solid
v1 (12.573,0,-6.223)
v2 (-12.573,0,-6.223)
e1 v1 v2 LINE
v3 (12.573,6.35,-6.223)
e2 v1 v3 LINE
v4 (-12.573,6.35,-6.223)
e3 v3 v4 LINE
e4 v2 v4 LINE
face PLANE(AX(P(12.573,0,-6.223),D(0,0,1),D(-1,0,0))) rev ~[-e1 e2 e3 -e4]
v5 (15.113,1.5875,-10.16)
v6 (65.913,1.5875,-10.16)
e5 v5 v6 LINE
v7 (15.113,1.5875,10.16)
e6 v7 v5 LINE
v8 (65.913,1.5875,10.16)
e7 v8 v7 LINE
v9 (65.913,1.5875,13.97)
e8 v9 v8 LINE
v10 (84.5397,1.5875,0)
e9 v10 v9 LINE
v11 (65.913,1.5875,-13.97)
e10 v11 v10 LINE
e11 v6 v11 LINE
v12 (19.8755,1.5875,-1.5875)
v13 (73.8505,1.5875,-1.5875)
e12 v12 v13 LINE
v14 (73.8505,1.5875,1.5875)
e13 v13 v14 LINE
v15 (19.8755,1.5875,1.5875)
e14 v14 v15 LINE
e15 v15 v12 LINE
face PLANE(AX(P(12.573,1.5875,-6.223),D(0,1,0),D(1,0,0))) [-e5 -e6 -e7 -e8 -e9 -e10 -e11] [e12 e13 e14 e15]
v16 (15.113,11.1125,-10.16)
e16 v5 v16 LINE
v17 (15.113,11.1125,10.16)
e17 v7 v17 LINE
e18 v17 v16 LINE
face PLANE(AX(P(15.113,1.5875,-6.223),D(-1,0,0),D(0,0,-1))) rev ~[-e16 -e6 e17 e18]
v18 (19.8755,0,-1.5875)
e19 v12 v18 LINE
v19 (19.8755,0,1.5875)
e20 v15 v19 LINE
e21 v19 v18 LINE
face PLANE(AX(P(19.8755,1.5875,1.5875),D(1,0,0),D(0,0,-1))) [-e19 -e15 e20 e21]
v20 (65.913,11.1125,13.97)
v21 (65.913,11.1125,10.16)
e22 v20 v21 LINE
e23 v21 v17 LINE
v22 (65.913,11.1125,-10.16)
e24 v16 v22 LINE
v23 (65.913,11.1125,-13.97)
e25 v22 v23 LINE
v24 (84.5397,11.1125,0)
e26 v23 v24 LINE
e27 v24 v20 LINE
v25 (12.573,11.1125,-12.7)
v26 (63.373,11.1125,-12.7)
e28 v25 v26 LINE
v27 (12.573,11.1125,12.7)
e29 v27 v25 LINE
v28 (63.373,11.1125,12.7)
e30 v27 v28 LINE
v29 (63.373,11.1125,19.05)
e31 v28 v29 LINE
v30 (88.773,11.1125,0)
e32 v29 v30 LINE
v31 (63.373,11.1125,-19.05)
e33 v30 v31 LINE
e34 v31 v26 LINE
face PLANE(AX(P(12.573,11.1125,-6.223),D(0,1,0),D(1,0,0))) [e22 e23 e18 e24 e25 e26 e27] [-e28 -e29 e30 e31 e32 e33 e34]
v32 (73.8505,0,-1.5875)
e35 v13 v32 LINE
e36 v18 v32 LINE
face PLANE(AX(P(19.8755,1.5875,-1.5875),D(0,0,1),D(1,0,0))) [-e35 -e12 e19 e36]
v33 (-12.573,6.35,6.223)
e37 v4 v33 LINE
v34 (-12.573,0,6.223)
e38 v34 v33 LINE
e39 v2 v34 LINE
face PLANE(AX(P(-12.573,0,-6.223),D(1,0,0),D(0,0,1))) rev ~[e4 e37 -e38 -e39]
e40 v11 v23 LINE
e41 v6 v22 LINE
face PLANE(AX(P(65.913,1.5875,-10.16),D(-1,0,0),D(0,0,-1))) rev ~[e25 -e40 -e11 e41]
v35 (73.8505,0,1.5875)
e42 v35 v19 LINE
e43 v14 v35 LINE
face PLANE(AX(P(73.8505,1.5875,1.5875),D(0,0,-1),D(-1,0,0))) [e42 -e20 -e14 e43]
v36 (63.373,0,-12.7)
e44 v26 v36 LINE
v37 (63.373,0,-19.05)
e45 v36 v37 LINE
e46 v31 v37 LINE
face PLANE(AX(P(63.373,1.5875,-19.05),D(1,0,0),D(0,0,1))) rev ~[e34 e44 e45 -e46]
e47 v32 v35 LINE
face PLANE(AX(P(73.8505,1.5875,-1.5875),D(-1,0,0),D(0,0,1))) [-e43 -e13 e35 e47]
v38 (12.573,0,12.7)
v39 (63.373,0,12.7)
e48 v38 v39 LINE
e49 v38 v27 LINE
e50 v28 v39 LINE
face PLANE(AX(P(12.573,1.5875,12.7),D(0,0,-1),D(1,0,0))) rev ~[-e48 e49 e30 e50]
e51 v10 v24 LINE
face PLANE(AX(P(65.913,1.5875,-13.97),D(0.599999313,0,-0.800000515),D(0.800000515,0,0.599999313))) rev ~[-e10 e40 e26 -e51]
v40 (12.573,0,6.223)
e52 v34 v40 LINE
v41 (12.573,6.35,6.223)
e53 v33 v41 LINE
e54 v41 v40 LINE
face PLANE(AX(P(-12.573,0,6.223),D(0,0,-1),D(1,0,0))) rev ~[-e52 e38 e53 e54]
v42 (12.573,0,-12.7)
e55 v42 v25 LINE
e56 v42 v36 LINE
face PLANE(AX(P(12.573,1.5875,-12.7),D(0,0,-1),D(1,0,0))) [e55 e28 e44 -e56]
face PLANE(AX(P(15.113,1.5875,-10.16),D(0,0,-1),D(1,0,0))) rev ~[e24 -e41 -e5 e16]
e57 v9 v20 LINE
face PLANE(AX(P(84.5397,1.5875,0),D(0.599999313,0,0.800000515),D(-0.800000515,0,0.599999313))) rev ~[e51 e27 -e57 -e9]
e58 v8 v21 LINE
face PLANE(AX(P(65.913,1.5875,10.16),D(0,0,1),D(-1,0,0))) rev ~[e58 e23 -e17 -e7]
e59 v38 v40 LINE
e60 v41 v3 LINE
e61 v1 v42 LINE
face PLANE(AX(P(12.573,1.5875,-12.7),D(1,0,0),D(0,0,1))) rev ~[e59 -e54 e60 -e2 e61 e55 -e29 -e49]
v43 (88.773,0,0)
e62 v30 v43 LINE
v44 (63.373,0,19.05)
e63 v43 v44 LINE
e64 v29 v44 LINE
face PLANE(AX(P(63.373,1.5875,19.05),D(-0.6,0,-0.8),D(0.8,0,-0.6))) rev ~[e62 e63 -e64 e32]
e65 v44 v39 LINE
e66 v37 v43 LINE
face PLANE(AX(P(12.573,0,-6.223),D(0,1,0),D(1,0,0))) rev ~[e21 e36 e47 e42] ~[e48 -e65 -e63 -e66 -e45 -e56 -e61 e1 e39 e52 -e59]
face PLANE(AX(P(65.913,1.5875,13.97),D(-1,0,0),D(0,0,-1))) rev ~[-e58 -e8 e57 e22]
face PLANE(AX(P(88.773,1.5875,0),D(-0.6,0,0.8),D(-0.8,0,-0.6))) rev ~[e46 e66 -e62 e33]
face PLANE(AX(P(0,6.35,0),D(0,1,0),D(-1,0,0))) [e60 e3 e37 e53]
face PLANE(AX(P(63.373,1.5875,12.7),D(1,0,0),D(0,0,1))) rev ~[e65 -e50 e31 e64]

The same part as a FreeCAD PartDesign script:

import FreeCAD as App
import Part
import Sketcher
Q = App.Units.Quantity

doc = App.newDocument("Part")
params = doc.addObject("Spreadsheet::Sheet", "Params")
for row, (alias, value) in enumerate([
    ("sketch1_width", "0.99 in"),
    ("sketch1_height", "0.49 in"),
    ("pad1_length", "0.25 in"),
    ("sketch2_height", "1 in"),
    ("sketch2_width", "0.0625 in"),
    ("pad2_length", "2 in"),
    ("sketch3_height", "1.5 in"),
    ("pad3_length", "0.0625 in"),
    ("sketch4_width", "2 in"),
    ("sketch4_height", "1 in"),
    ("sketch4_height2", "0.25 in"),
    ("sketch4_height3", "0.15 in"),
    ("pad4_length", "0.375 in"),
    ("sketch5_height", "0.125 in"),
    ("sketch5_width", "2.125 in"),
    ("pocket1_length", "0.375 in"),
], start=1):
    params.set(f"A{row}", alias)
    params.set(f"B{row}", "=" + value)
    params.setAlias(f"B{row}", alias)

body = doc.addObject("PartDesign::Body", "Body")

# Sketch on XZ plane
sketch1 = body.newObject("Sketcher::SketchObject", "Sketch")
sketch1.AttachmentSupport = (doc.getObject("XZ_Plane"), [""])
sketch1.MapMode = "FlatFace"
sketch1.addGeometry([
    Part.LineSegment(App.Vector(-12.573, -6.223, 0), App.Vector(-12.573, 6.223, 0)),
    Part.LineSegment(App.Vector(-12.573, 6.223, 0), App.Vector(12.573, 6.223, 0)),
    Part.LineSegment(App.Vector(12.573, 6.223, 0), App.Vector(12.573, -6.223, 0)),
    Part.LineSegment(App.Vector(12.573, -6.223, 0), App.Vector(-12.573, -6.223, 0)),
], False)
sketch1.addConstraint([
    Sketcher.Constraint("Coincident", 0, 2, 1, 1),
    Sketcher.Constraint("Coincident", 1, 2, 2, 1),
    Sketcher.Constraint("Coincident", 2, 2, 3, 1),
    Sketcher.Constraint("Coincident", 3, 2, 0, 1),
    Sketcher.Constraint("Vertical", 0),
    Sketcher.Constraint("Horizontal", 1),
    Sketcher.Constraint("Vertical", 2),
    Sketcher.Constraint("Horizontal", 3),
    Sketcher.Constraint("Symmetric", 0, 2, 2, 2, -1, 1),
    Sketcher.Constraint("DistanceX", 1, 1, 1, 2, Q("0.99 in")),
    Sketcher.Constraint("DistanceY", 0, 1, 0, 2, Q("0.49 in")),
])
sketch1.setExpression("Constraints[9]", "Params.sketch1_width")
sketch1.setExpression("Constraints[10]", "Params.sketch1_height")
pad1 = body.newObject("PartDesign::Pad", "Pad")
pad1.Profile = sketch1
pad1.setExpression("Length", "Params.pad1_length")
pad1.Reversed = True

# Sketch on YZ plane
sketch2 = body.newObject("Sketcher::SketchObject", "Sketch001")
sketch2.AttachmentSupport = (doc.getObject("YZ_Plane"), [""])
sketch2.MapMode = "FlatFace"
sketch2.AttachmentOffset = App.Placement(App.Vector(0, 0, 0.495 * 25.4), App.Rotation())
sketch2.addGeometry([
    Part.LineSegment(App.Vector(1.5875, 12.7, 0), App.Vector(0, 12.7, 0)),
    Part.LineSegment(App.Vector(0, 12.7, 0), App.Vector(0, -12.7, 0)),
    Part.LineSegment(App.Vector(0, -12.7, 0), App.Vector(1.5875, -12.7, 0)),
    Part.LineSegment(App.Vector(1.5875, -12.7, 0), App.Vector(1.5875, 12.7, 0)),
], False)
sketch2.addConstraint([
    Sketcher.Constraint("Coincident", 0, 2, 1, 1),
    Sketcher.Constraint("Coincident", 1, 2, 2, 1),
    Sketcher.Constraint("Coincident", 2, 2, 3, 1),
    Sketcher.Constraint("Coincident", 3, 2, 0, 1),
    Sketcher.Constraint("Horizontal", 0),
    Sketcher.Constraint("Vertical", 1),
    Sketcher.Constraint("Horizontal", 2),
    Sketcher.Constraint("Vertical", 3),
    Sketcher.Constraint("Symmetric", 0, 2, 1, 2, -1, 1),
    Sketcher.Constraint("DistanceY", 1, 2, 1, 1, Q("1 in")),
    Sketcher.Constraint("DistanceX", 0, 2, 0, 1, Q("0.0625 in")),
])
sketch2.setExpression("Constraints[9]", "Params.sketch2_height")
sketch2.setExpression("Constraints[10]", "Params.sketch2_width")
pad2 = body.newObject("PartDesign::Pad", "Pad001")
pad2.Profile = sketch2
pad2.setExpression("Length", "Params.pad2_length")

# Sketch on XZ plane
sketch3 = body.newObject("Sketcher::SketchObject", "Sketch002")
sketch3.AttachmentSupport = (doc.getObject("XZ_Plane"), [""])
sketch3.MapMode = "FlatFace"
sketch3.AttachmentOffset = App.Placement(App.Vector(0, 0, -0.0625 * 25.4), App.Rotation())
sketch3.addGeometry([
    Part.LineSegment(App.Vector(63.373, -19.05, 0), App.Vector(63.373, 19.05, 0)),
    Part.LineSegment(App.Vector(63.373, 19.05, 0), App.Vector(88.773, 0, 0)),
    Part.LineSegment(App.Vector(88.773, 0, 0), App.Vector(63.373, -19.05, 0)),
], False)
sketch3.addConstraint([
    Sketcher.Constraint("Coincident", 0, 2, 1, 1),
    Sketcher.Constraint("Coincident", 1, 2, 2, 1),
    Sketcher.Constraint("Coincident", 2, 2, 0, 1),
    Sketcher.Constraint("Vertical", 0),
    Sketcher.Constraint("PointOnObject", 1, 2, -1),
    Sketcher.Constraint("Equal", 1, 2),
    Sketcher.Constraint("DistanceY", 0, 1, 0, 2, Q("1.5 in")),
    Sketcher.Constraint("DistanceX", 0, 2, 1, 2, Q("1 in")),
    Sketcher.Constraint("DistanceX", -1, 1, 0, 2, Q("2.495 in")),
])
sketch3.setExpression("Constraints[6]", "Params.sketch3_height")
pad3 = body.newObject("PartDesign::Pad", "Pad002")
pad3.Profile = sketch3
pad3.setExpression("Length", "Params.pad3_length")

# Sketch on XZ plane
sketch4 = body.newObject("Sketcher::SketchObject", "Sketch003")
sketch4.AttachmentSupport = (doc.getObject("XZ_Plane"), [""])
sketch4.MapMode = "FlatFace"
sketch4.AttachmentOffset = App.Placement(App.Vector(0, 0, -0.0625 * 25.4), App.Rotation())
sketch4.addGeometry([
    Part.LineSegment(App.Vector(63.373, -12.7, 0), App.Vector(12.573, -12.7, 0)),  # 0
    Part.LineSegment(App.Vector(12.573, -12.7, 0), App.Vector(12.573, 12.7, 0)),  # 1
    Part.LineSegment(App.Vector(12.573, 12.7, 0), App.Vector(63.373, 12.7, 0)),  # 2
    Part.LineSegment(App.Vector(63.373, 12.7, 0), App.Vector(63.373, 19.05, 0)),  # 3
    Part.LineSegment(App.Vector(63.373, 19.05, 0), App.Vector(88.773, 0, 0)),  # 4
    Part.LineSegment(App.Vector(88.773, 0, 0), App.Vector(63.373, -19.05, 0)),  # 5
    Part.LineSegment(App.Vector(63.373, -19.05, 0), App.Vector(63.373, -12.7, 0)),  # 6
    Part.LineSegment(App.Vector(15.113, -10.16, 0), App.Vector(65.913, -10.16, 0)),  # 7
    Part.LineSegment(App.Vector(65.913, -10.16, 0), App.Vector(65.913, -13.97, 0)),  # 8
    Part.LineSegment(App.Vector(65.913, -13.97, 0), App.Vector(84.5397, 0, 0)),  # 9
    Part.LineSegment(App.Vector(84.5397, 0, 0), App.Vector(65.913, 13.97, 0)),  # 10
    Part.LineSegment(App.Vector(65.913, 13.97, 0), App.Vector(65.913, 10.16, 0)),  # 11
    Part.LineSegment(App.Vector(65.913, 10.16, 0), App.Vector(15.113, 10.16, 0)),  # 12
    Part.LineSegment(App.Vector(15.113, 10.16, 0), App.Vector(15.113, -10.16, 0)),  # 13
], False)
sketch4.addConstraint([
    Sketcher.Constraint("Coincident", 0, 2, 1, 1),
    Sketcher.Constraint("Coincident", 1, 2, 2, 1),
    Sketcher.Constraint("Coincident", 2, 2, 3, 1),
    Sketcher.Constraint("Coincident", 3, 2, 4, 1),
    Sketcher.Constraint("Coincident", 4, 2, 5, 1),
    Sketcher.Constraint("Coincident", 5, 2, 6, 1),
    Sketcher.Constraint("Coincident", 6, 2, 0, 1),
    Sketcher.Constraint("Coincident", 7, 2, 8, 1),
    Sketcher.Constraint("Coincident", 8, 2, 9, 1),
    Sketcher.Constraint("Coincident", 9, 2, 10, 1),
    Sketcher.Constraint("Coincident", 10, 2, 11, 1),
    Sketcher.Constraint("Coincident", 11, 2, 12, 1),
    Sketcher.Constraint("Coincident", 12, 2, 13, 1),
    Sketcher.Constraint("Coincident", 13, 2, 7, 1),
    Sketcher.Constraint("Horizontal", 0),
    Sketcher.Constraint("Vertical", 1),
    Sketcher.Constraint("Horizontal", 2),
    Sketcher.Constraint("Vertical", 3),
    Sketcher.Constraint("Vertical", 6),
    Sketcher.Constraint("Horizontal", 7),
    Sketcher.Constraint("Vertical", 8),
    Sketcher.Constraint("Vertical", 11),
    Sketcher.Constraint("Horizontal", 12),
    Sketcher.Constraint("Vertical", 13),
    Sketcher.Constraint("Symmetric", 3, 2, 5, 2, -1),
    Sketcher.Constraint("Symmetric", 8, 2, 10, 2, -1),
    Sketcher.Constraint("PointOnObject", 4, 2, -1),
    Sketcher.Constraint("PointOnObject", 9, 2, -1),
    Sketcher.Constraint("Parallel", 5, 9),
    Sketcher.Constraint("Equal", 2, 7),
    Sketcher.Constraint("Equal", 3, 6),
    Sketcher.Constraint("Equal", 8, 11),
    Sketcher.Constraint("DistanceX", 6, 2, 7, 2, Q("0.1 in")),
    Sketcher.Constraint("DistanceY", 6, 2, 7, 2, Q("0.1 in")),
    Sketcher.Constraint("DistanceX", 0, 2, 0, 1, Q("2 in")),
    Sketcher.Constraint("DistanceY", 1, 1, 1, 2, Q("1 in")),
    Sketcher.Constraint("DistanceX", 2, 2, 4, 2, Q("1 in")),
    Sketcher.Constraint("DistanceY", 3, 1, 3, 2, Q("0.25 in")),
    Sketcher.Constraint("DistanceY", 8, 2, 8, 1, Q("0.15 in")),
    Sketcher.Constraint("DistanceX", -1, 1, 0, 2, Q("0.495 in")),
])
sketch4.setExpression("Constraints[34]", "Params.sketch4_width")
sketch4.setExpression("Constraints[35]", "Params.sketch4_height")
sketch4.setExpression("Constraints[37]", "Params.sketch4_height2")
sketch4.setExpression("Constraints[38]", "Params.sketch4_height3")
pad4 = body.newObject("PartDesign::Pad", "Pad003")
pad4.Profile = sketch4
pad4.setExpression("Length", "Params.pad4_length")
pad4.Reversed = True

# Sketch on XZ plane
sketch5 = body.newObject("Sketcher::SketchObject", "Sketch004")
sketch5.AttachmentSupport = (doc.getObject("XZ_Plane"), [""])
sketch5.MapMode = "FlatFace"
sketch5.AttachmentOffset = App.Placement(App.Vector(0, 0, -0.0625 * 25.4), App.Rotation())
sketch5.addGeometry([
    Part.LineSegment(App.Vector(73.8505, -1.5875, 0), App.Vector(19.8755, -1.5875, 0)),
    Part.LineSegment(App.Vector(19.8755, -1.5875, 0), App.Vector(19.8755, 1.5875, 0)),
    Part.LineSegment(App.Vector(19.8755, 1.5875, 0), App.Vector(73.8505, 1.5875, 0)),
    Part.LineSegment(App.Vector(73.8505, 1.5875, 0), App.Vector(73.8505, -1.5875, 0)),
], False)
sketch5.addConstraint([
    Sketcher.Constraint("Coincident", 0, 2, 1, 1),
    Sketcher.Constraint("Coincident", 1, 2, 2, 1),
    Sketcher.Constraint("Coincident", 2, 2, 3, 1),
    Sketcher.Constraint("Coincident", 3, 2, 0, 1),
    Sketcher.Constraint("Horizontal", 0),
    Sketcher.Constraint("Vertical", 1),
    Sketcher.Constraint("Horizontal", 2),
    Sketcher.Constraint("Vertical", 3),
    Sketcher.Constraint("DistanceY", 1, 1, 1, 2, Q("0.125 in")),
    Sketcher.Constraint("DistanceY", 0, 2, -1, 1, Q("0.0625 in")),
    Sketcher.Constraint("DistanceX", 0, 2, 0, 1, Q("2.125 in")),
    Sketcher.Constraint("DistanceX", -1, 1, 0, 2, Q("0.7825 in")),
])
sketch5.setExpression("Constraints[8]", "Params.sketch5_height")
sketch5.setExpression("Constraints[10]", "Params.sketch5_width")
pocket1 = body.newObject("PartDesign::Pocket", "Pocket")
pocket1.Profile = sketch5
pocket1.setExpression("Length", "Params.pocket1_length")
pocket1.Reversed = True

doc.recompute()
